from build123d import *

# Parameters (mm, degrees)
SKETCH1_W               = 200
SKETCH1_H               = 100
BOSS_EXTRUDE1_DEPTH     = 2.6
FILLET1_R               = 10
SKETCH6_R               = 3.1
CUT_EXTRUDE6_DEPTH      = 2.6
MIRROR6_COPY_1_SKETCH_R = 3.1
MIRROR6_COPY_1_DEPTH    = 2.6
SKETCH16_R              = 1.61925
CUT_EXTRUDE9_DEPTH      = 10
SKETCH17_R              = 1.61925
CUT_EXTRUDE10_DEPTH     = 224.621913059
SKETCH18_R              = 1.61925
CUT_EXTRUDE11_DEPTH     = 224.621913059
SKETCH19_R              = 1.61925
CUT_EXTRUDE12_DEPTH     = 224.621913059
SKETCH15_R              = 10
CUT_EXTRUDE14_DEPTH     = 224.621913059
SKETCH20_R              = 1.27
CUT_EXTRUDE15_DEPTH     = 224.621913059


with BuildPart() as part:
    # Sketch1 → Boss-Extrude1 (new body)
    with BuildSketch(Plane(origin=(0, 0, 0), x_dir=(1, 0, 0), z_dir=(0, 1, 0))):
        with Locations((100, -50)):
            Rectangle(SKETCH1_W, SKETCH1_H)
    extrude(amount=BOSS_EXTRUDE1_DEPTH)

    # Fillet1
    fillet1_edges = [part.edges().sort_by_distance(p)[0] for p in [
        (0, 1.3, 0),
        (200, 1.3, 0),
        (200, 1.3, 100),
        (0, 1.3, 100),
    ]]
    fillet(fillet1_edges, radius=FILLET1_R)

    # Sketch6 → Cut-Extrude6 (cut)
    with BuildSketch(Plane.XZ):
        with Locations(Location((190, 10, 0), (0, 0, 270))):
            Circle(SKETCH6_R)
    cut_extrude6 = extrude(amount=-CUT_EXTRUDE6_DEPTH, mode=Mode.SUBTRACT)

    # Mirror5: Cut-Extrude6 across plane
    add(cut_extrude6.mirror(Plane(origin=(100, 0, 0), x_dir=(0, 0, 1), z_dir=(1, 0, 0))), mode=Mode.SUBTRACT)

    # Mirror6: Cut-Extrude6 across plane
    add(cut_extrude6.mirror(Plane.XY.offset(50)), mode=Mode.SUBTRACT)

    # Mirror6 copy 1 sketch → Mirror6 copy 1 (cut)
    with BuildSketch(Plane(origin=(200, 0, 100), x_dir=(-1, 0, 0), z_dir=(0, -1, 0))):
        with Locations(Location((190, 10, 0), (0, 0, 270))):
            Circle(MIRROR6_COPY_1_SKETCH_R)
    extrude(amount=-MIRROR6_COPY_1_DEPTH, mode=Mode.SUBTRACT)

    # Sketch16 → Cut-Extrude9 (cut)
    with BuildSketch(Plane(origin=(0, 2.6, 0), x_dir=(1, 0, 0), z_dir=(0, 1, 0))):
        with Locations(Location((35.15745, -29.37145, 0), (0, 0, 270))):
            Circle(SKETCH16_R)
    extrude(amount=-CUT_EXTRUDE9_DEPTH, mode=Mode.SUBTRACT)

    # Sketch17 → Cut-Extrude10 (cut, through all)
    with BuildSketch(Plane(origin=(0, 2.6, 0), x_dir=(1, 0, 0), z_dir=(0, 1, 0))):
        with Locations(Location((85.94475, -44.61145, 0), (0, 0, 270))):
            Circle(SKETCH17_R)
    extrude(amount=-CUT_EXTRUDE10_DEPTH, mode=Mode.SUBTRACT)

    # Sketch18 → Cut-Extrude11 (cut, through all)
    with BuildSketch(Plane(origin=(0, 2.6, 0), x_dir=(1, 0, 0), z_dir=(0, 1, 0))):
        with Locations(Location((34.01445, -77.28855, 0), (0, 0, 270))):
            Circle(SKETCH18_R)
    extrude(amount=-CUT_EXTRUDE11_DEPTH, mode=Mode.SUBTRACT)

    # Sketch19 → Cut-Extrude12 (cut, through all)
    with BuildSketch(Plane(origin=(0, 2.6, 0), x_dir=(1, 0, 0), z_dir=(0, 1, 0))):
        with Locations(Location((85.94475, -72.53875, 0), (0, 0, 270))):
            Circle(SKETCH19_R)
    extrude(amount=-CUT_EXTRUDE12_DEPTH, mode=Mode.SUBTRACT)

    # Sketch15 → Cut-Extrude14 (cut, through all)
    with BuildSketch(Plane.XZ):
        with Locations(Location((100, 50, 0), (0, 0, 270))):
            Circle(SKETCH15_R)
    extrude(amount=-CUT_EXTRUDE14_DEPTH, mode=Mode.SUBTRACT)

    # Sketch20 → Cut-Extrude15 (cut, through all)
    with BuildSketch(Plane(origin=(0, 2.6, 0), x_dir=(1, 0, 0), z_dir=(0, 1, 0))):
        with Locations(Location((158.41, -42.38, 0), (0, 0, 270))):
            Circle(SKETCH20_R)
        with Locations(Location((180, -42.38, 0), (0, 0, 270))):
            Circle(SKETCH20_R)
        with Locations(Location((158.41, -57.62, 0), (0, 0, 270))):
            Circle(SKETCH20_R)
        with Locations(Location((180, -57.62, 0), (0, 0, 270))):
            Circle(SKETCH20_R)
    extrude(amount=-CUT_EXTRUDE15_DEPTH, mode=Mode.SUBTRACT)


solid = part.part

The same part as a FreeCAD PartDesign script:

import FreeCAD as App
import Part
import Sketcher
Q = App.Units.Quantity


def edges_at(feature, points):
    """Names of the edges that pass closest to the given points."""
    edges = feature.Shape.Edges
    near = lambda p: min(range(len(edges)), key=lambda i: edges[i].distToShape(Part.Vertex(*p))[0])
    return sorted({f"Edge{near(p) + 1}" for p in points})


def add_polygon(sketch, points):
    """Adds a closed chain of lines whose ends are joined by coincident constraints."""
    first, n = sketch.GeometryCount, len(points)
    for a, b in zip(points, points[1:] + points[:1]):
        sketch.addGeometry(Part.LineSegment(App.Vector(*a, 0), App.Vector(*b, 0)), False)
    for i in range(n):
        sketch.addConstraint(Sketcher.Constraint("Coincident", first + i, 2, first + (i + 1) % n, 1))

doc = App.newDocument("Part")
body = doc.addObject("PartDesign::Body", "Body")

sketch1 = body.newObject("Sketcher::SketchObject", "Sketch")
sketch1.AttachmentSupport = (doc.getObject("XZ_Plane"), [""])
sketch1.MapMode = "FlatFace"
add_polygon(sketch1, [(0, 0), (0, 100), (200, 100), (200, 0)])
sketch1.addConstraint([
    Sketcher.Constraint("Vertical", 0),
    Sketcher.Constraint("Horizontal", 1),
    Sketcher.Constraint("Vertical", 2),
    Sketcher.Constraint("Horizontal", 3),
    Sketcher.Constraint("Coincident", 3, 2, -1, 1),
    Sketcher.Constraint("DistanceX", 1, 1, 1, 2, Q("200 mm")),
    Sketcher.Constraint("DistanceY", 0, 1, 0, 2, Q("100 mm")),
])
pad1 = body.newObject("PartDesign::Pad", "Pad")
pad1.Profile = sketch1
pad1.Length = 2.6
pad1.Reversed = True
doc.recompute()

fillet = body.newObject("PartDesign::Fillet", "Fillet")
fillet.Base = (pad1, edges_at(pad1, [
    (0, 1.3, 0),
    (200, 1.3, 0),
    (200, 1.3, 100),
    (0, 1.3, 100),
]))
fillet.Radius = 10

sketch2 = body.newObject("Sketcher::SketchObject", "Sketch001")
sketch2.AttachmentSupport = (doc.getObject("XZ_Plane"), [""])
sketch2.MapMode = "FlatFace"
sketch2.addGeometry(Part.Circle(App.Vector(190, 10, 0), App.Vector(0, 0, 1), 3.1), False)
sketch2.addConstraint([
    Sketcher.Constraint("Diameter", 0, Q("6.2 mm")),
    Sketcher.Constraint("DistanceX", -1, 1, 0, 3, Q("190 mm")),
    Sketcher.Constraint("DistanceY", -1, 1, 0, 3, Q("10 mm")),
])
pocket1 = body.newObject("PartDesign::Pocket", "Pocket")
pocket1.Profile = sketch2
pocket1.Length = 2.6
doc.recompute()

datumplane = body.newObject("PartDesign::Plane", "DatumPlane")
datumplane.AttachmentSupport = (doc.getObject("YZ_Plane"), [""])
datumplane.MapMode = "FlatFace"
datumplane.AttachmentOffset = App.Placement(App.Vector(0, 0, 100), App.Rotation())
mirrored = body.newObject("PartDesign::Mirrored", "Mirrored")
mirrored.Originals = [pocket1]
mirrored.MirrorPlane = (datumplane, [""])
body.Tip = mirrored
doc.recompute()

datumplane2 = body.newObject("PartDesign::Plane", "DatumPlane001")
datumplane2.AttachmentSupport = (doc.getObject("XY_Plane"), [""])
datumplane2.MapMode = "FlatFace"
datumplane2.AttachmentOffset = App.Placement(App.Vector(0, 0, 50), App.Rotation())
mirrored2 = body.newObject("PartDesign::Mirrored", "Mirrored001")
mirrored2.Originals = [pocket1]
mirrored2.MirrorPlane = (datumplane2, [""])
body.Tip = mirrored2

sketch3 = body.newObject("Sketcher::SketchObject", "Sketch002")
sketch3.AttachmentSupport = (doc.getObject("XZ_Plane"), [""])
sketch3.MapMode = "FlatFace"
sketch3.addGeometry(Part.Circle(App.Vector(10, 90, 0), App.Vector(0, 0, 1), 3.1), False)
sketch3.addConstraint([
    Sketcher.Constraint("Diameter", 0, Q("6.2 mm")),
    Sketcher.Constraint("DistanceX", -1, 1, 0, 3, Q("10 mm")),
    Sketcher.Constraint("DistanceY", -1, 1, 0, 3, Q("90 mm")),
])
pocket2 = body.newObject("PartDesign::Pocket", "Pocket001")
pocket2.Profile = sketch3
pocket2.Length = 2.6

sketch4 = body.newObject("Sketcher::SketchObject", "Sketch003")
sketch4.AttachmentSupport = (doc.getObject("XZ_Plane"), [""])
sketch4.MapMode = "FlatFace"
sketch4.AttachmentOffset = App.Placement(App.Vector(0, 0, -2.6), App.Rotation())
sketch4.addGeometry(Part.Circle(App.Vector(35.2, 29.4, 0), App.Vector(0, 0, 1), 1.6), False)
sketch4.addConstraint([
    Sketcher.Constraint("Diameter", 0, Q("3.2385 mm")),
    Sketcher.Constraint("DistanceX", -1, 1, 0, 3, Q("35.15745 mm")),
    Sketcher.Constraint("DistanceY", -1, 1, 0, 3, Q("29.37145 mm")),
])
pocket3 = body.newObject("PartDesign::Pocket", "Pocket002")
pocket3.Profile = sketch4
pocket3.Length = 10
pocket3.Reversed = True

sketch5 = body.newObject("Sketcher::SketchObject", "Sketch004")
sketch5.AttachmentSupport = (doc.getObject("XZ_Plane"), [""])
sketch5.MapMode = "FlatFace"
sketch5.AttachmentOffset = App.Placement(App.Vector(0, 0, -2.6), App.Rotation())
sketch5.addGeometry(Part.Circle(App.Vector(85.9, 44.6, 0), App.Vector(0, 0, 1), 1.6), False)
sketch5.addConstraint([
    Sketcher.Constraint("Diameter", 0, Q("3.2385 mm")),
    Sketcher.Constraint("DistanceX", -1, 1, 0, 3, Q("85.94475 mm")),
    Sketcher.Constraint("DistanceY", -1, 1, 0, 3, Q("44.61145 mm")),
])
pocket4 = body.newObject("PartDesign::Pocket", "Pocket003")
pocket4.Profile = sketch5
pocket4.Type = "ThroughAll"
pocket4.Reversed = True

sketch6 = body.newObject("Sketcher::SketchObject", "Sketch005")
sketch6.AttachmentSupport = (doc.getObject("XZ_Plane"), [""])
sketch6.MapMode = "FlatFace"
sketch6.AttachmentOffset = App.Placement(App.Vector(0, 0, -2.6), App.Rotation())
sketch6.addGeometry(Part.Circle(App.Vector(34, 77.3, 0), App.Vector(0, 0, 1), 1.6), False)
sketch6.addConstraint([
    Sketcher.Constraint("Diameter", 0, Q("3.2385 mm")),
    Sketcher.Constraint("DistanceX", -1, 1, 0, 3, Q("34.01445 mm")),
    Sketcher.Constraint("DistanceY", -1, 1, 0, 3, Q("77.28855 mm")),
])
pocket5 = body.newObject("PartDesign::Pocket", "Pocket004")
pocket5.Profile = sketch6
pocket5.Type = "ThroughAll"
pocket5.Reversed = True

sketch7 = body.newObject("Sketcher::SketchObject", "Sketch006")
sketch7.AttachmentSupport = (doc.getObject("XZ_Plane"), [""])
sketch7.MapMode = "FlatFace"
sketch7.AttachmentOffset = App.Placement(App.Vector(0, 0, -2.6), App.Rotation())
sketch7.addGeometry(Part.Circle(App.Vector(85.9, 72.5, 0), App.Vector(0, 0, 1), 1.6), False)
sketch7.addConstraint([
    Sketcher.Constraint("Diameter", 0, Q("3.2385 mm")),
    Sketcher.Constraint("DistanceX", -1, 1, 0, 3, Q("85.94475 mm")),
    Sketcher.Constraint("DistanceY", -1, 1, 0, 3, Q("72.53875 mm")),
])
pocket6 = body.newObject("PartDesign::Pocket", "Pocket005")
pocket6.Profile = sketch7
pocket6.Type = "ThroughAll"
pocket6.Reversed = True

sketch8 = body.newObject("Sketcher::SketchObject", "Sketch007")
sketch8.AttachmentSupport = (doc.getObject("XZ_Plane"), [""])
sketch8.MapMode = "FlatFace"
sketch8.addGeometry(Part.Circle(App.Vector(100, 50, 0), App.Vector(0, 0, 1), 10), False)
sketch8.addConstraint([
    Sketcher.Constraint("Diameter", 0, Q("20 mm")),
    Sketcher.Constraint("DistanceX", -1, 1, 0, 3, Q("100 mm")),
    Sketcher.Constraint("DistanceY", -1, 1, 0, 3, Q("50 mm")),
])
pocket7 = body.newObject("PartDesign::Pocket", "Pocket006")
pocket7.Profile = sketch8
pocket7.Type = "ThroughAll"

sketch9 = body.newObject("Sketcher::SketchObject", "Sketch008")
sketch9.AttachmentSupport = (doc.getObject("XZ_Plane"), [""])
sketch9.MapMode = "FlatFace"
sketch9.AttachmentOffset = App.Placement(App.Vector(0, 0, -2.6), App.Rotation())
sketch9.addGeometry([
    Part.Circle(App.Vector(158.4, 42.4, 0), App.Vector(0, 0, 1), 1.3),
    Part.Circle(App.Vector(180, 42.4, 0), App.Vector(0, 0, 1), 1.3),
    Part.Circle(App.Vector(158.4, 57.6, 0), App.Vector(0, 0, 1), 1.3),
    Part.Circle(App.Vector(180, 57.6, 0), App.Vector(0, 0, 1), 1.3),
], False)
sketch9.addConstraint([
    Sketcher.Constraint("Equal", 0, 1),
    Sketcher.Constraint("Equal", 1, 2),
    Sketcher.Constraint("Equal", 2, 3),
    Sketcher.Constraint("Horizontal", 0, 3, 1, 3),
    Sketcher.Constraint("Horizontal", 2, 3, 3, 3),
    Sketcher.Constraint("Vertical", 0, 3, 2, 3),
    Sketcher.Constraint("Vertical", 1, 3, 3, 3),
    Sketcher.Constraint("Diameter", 0, Q("2.54 mm")),
    Sketcher.Constraint("DistanceX", -1, 1, 1, 3, Q("180 mm")),
    Sketcher.Constraint("DistanceX", -1, 1, 0, 3, Q("158.41 mm")),
    Sketcher.Constraint("DistanceY", -1, 1, 0, 3, Q("42.38 mm")),
    Sketcher.Constraint("DistanceY", -1, 1, 2, 3, Q("57.62 mm")),
])
pocket8 = body.newObject("PartDesign::Pocket", "Pocket007")
pocket8.Profile = sketch9
pocket8.Type = "ThroughAll"
pocket8.Reversed = True

doc.recompute()
